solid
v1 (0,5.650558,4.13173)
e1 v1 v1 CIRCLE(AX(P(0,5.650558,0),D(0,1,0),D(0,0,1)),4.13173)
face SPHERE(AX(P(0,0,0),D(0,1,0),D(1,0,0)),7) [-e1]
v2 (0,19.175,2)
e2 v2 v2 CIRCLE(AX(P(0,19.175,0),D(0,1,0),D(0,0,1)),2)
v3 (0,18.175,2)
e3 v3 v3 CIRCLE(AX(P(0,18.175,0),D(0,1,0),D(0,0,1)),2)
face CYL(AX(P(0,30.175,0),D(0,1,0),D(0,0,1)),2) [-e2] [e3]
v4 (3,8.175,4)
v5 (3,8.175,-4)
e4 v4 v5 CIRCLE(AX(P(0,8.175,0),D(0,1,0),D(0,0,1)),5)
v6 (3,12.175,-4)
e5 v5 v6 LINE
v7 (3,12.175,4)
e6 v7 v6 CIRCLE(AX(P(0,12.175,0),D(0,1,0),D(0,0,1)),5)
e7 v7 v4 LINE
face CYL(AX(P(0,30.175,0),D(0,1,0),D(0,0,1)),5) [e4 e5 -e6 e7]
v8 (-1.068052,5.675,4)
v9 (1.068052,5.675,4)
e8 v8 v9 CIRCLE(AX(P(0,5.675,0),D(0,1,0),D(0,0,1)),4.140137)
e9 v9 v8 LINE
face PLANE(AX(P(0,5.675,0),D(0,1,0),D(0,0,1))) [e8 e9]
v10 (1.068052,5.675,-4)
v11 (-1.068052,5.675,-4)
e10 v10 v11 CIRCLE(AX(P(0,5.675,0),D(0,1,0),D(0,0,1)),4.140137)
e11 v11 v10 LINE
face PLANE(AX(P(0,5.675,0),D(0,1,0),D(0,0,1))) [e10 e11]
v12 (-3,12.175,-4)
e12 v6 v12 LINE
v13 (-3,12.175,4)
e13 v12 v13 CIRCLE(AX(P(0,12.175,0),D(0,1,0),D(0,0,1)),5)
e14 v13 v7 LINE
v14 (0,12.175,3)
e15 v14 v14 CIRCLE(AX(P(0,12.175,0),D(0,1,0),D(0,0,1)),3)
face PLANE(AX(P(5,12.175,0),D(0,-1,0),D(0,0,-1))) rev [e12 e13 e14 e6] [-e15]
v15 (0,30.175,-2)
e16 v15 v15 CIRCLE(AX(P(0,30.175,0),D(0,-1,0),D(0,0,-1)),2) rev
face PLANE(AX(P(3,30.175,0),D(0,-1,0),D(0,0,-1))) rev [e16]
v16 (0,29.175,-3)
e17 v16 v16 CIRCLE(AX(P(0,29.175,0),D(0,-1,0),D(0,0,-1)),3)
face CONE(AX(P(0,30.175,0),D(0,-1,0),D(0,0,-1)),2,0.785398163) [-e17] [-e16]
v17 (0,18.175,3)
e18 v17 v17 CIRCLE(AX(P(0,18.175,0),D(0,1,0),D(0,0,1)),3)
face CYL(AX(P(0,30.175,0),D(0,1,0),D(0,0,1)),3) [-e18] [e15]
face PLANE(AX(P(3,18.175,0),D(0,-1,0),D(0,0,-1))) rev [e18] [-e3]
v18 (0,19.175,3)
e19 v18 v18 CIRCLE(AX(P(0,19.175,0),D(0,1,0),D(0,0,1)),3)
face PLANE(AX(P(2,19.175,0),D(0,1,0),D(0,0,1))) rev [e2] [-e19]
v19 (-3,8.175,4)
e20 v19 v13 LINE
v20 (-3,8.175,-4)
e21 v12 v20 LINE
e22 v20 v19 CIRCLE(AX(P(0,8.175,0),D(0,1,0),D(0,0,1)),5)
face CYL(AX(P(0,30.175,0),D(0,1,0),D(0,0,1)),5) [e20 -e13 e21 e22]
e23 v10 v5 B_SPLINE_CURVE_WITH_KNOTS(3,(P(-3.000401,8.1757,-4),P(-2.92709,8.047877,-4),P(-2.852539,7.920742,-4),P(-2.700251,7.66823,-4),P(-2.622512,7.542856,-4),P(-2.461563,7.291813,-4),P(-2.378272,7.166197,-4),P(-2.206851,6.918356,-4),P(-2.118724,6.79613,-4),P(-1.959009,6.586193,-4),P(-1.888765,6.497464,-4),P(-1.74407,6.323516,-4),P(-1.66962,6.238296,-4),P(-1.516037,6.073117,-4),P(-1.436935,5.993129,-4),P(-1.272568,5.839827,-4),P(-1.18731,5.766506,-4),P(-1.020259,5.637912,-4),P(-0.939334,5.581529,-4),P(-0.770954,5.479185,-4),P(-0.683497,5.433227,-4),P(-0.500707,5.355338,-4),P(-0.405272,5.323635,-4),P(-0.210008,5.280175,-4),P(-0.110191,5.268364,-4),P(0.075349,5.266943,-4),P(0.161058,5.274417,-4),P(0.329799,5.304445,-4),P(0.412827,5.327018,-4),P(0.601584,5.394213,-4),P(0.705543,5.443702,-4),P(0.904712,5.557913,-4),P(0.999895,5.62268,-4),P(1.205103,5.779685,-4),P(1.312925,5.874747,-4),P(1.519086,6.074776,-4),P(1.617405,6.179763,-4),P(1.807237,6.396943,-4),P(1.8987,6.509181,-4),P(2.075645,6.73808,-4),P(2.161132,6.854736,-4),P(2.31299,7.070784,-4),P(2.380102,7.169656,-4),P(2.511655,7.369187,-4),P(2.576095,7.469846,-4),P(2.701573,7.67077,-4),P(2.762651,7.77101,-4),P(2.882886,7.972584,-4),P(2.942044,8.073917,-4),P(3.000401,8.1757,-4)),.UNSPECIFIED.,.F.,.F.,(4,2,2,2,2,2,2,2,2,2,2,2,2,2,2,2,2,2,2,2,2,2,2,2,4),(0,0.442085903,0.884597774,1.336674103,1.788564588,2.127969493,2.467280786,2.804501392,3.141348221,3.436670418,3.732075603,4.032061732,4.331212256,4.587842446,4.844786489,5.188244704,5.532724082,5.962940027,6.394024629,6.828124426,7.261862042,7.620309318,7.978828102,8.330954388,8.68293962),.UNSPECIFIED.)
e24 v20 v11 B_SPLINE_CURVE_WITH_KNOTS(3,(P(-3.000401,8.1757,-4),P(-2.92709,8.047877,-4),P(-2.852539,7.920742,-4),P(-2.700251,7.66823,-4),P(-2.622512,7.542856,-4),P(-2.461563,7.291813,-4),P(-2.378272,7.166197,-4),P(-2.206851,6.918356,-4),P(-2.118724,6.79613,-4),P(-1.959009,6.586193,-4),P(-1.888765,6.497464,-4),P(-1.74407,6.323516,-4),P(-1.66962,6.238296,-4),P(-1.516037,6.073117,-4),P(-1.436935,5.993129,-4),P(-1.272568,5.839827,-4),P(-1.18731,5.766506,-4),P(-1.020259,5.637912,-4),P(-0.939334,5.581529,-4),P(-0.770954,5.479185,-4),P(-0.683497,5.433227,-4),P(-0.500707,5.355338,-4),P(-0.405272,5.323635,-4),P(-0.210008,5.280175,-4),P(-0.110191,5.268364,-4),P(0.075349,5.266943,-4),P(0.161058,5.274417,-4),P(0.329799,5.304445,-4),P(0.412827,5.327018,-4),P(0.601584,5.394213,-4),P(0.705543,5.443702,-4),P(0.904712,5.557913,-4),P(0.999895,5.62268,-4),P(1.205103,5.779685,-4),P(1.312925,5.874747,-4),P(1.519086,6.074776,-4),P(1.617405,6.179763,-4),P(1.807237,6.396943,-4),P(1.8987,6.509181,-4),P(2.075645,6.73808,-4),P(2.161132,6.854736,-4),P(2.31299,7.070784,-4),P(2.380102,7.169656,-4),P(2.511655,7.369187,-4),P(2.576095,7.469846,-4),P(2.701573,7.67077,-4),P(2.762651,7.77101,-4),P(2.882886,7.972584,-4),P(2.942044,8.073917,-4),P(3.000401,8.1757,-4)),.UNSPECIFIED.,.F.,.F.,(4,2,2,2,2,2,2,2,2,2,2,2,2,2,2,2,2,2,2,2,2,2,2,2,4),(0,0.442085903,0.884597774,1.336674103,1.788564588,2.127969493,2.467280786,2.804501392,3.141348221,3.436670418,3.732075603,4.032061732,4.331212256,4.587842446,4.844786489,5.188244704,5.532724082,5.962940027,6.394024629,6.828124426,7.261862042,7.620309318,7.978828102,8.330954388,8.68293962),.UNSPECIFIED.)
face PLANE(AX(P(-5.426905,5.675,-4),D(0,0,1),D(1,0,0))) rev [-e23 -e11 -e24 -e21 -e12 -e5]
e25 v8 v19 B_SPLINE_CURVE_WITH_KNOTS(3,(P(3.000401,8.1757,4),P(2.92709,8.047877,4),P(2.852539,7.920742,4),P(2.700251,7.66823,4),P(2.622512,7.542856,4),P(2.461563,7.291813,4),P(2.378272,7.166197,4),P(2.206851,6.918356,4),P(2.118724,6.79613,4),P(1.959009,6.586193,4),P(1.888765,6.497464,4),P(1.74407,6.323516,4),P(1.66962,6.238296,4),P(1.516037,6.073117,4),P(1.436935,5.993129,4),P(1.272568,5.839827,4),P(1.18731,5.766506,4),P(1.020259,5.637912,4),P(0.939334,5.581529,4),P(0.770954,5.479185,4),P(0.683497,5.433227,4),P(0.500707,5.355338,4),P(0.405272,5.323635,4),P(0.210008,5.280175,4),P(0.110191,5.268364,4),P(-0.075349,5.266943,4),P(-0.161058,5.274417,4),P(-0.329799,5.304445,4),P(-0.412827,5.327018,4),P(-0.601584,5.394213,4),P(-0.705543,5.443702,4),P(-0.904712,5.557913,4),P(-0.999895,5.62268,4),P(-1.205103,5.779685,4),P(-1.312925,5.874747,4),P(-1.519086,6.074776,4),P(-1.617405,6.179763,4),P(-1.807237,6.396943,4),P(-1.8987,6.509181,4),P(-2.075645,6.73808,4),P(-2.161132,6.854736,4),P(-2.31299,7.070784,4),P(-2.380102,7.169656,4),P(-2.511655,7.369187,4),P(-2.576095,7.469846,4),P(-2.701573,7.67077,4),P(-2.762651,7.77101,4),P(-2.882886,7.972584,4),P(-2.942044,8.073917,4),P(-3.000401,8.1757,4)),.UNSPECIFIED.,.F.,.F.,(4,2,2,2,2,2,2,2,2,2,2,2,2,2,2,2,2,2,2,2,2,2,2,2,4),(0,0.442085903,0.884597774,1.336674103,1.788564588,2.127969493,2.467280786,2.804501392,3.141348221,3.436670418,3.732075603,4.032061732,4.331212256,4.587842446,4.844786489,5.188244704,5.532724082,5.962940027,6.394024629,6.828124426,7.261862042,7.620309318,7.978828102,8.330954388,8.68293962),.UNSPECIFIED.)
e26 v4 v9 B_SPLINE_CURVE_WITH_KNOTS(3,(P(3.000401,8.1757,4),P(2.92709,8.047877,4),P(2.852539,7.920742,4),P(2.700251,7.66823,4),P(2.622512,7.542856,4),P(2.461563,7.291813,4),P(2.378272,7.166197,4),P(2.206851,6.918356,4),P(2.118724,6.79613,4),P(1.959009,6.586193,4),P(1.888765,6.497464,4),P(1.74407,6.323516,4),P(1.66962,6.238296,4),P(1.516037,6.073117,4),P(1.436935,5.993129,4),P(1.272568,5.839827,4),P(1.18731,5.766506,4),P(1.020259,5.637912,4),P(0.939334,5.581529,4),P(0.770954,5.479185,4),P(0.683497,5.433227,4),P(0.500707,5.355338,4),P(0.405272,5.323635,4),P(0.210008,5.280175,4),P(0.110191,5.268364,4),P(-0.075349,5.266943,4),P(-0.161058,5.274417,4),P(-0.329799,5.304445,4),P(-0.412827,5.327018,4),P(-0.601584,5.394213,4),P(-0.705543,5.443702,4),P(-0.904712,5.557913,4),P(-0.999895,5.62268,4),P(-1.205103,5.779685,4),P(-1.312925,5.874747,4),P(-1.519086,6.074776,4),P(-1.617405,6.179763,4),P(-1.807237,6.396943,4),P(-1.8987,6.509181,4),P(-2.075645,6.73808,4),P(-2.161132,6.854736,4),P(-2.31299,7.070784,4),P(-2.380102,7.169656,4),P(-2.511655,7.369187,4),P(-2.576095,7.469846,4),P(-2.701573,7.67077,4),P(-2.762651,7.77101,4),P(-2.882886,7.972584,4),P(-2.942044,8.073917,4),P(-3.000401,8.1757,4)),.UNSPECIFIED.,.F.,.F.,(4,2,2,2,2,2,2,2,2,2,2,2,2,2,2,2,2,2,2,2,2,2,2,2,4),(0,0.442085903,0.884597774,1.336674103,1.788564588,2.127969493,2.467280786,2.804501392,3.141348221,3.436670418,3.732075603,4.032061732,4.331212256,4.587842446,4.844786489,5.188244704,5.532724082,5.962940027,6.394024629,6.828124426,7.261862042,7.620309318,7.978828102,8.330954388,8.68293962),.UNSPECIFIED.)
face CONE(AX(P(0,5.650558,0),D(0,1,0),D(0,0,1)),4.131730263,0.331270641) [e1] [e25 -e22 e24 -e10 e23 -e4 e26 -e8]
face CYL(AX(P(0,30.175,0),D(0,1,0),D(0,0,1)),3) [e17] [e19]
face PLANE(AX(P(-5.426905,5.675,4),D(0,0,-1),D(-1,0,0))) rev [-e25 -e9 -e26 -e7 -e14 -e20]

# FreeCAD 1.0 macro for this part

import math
import FreeCAD as App
import Part
import Sketcher
from FreeCAD import Vector
Q = App.Units.Quantity


def edges_at(feature, points):
    """Names of the edges that pass closest to the given points."""
    edges = feature.Shape.Edges
    near = lambda p: min(range(len(edges)), key=lambda i: edges[i].distToShape(Part.Vertex(*p))[0])
    return sorted({f"Edge{near(p) + 1}" for p in points})


def add_polygon(sketch, points):
    """Adds a closed chain of lines whose ends are joined by coincident constraints."""
    first, n = sketch.GeometryCount, len(points)
    for a, b in zip(points, points[1:] + points[:1]):
        sketch.addGeometry(Part.LineSegment(App.Vector(*a, 0), App.Vector(*b, 0)), False)
    for i in range(n):
        sketch.addConstraint(Sketcher.Constraint("Coincident", first + i, 2, first + (i + 1) % n, 1))

doc = App.newDocument("Part")
params = doc.addObject("Spreadsheet::Sheet", "Params")
for row, (alias, value) in enumerate([
    ("sketch1_radius", "7 mm"),
    ("sketch1_width", "2 mm"),
    ("sketch1_width2", "1 mm"),
    ("sketch1_width3", "3 mm"),
    ("sketch1_height", "4 mm"),
    ("revolution_angle", "360 deg"),
    ("chamfer_size", "1 mm"),
    ("pocket1_length", "6.5 mm"),
], start=1):
    params.set(f"A{row}", alias)
    params.set(f"B{row}", "=" + value)
    params.setAlias(f"B{row}", alias)

body = doc.addObject("PartDesign::Body", "Body")

# Sketch on XY plane
sketch1 = doc.addObject("Sketcher::SketchObject", "Sketch")
body.addObject(sketch1)
sketch1.AttachmentSupport = (doc.XY_Plane, [""])
sketch1.MapMode = "FlatFace"
sketch1.addGeometry(Part.LineSegment(Vector(4.13173, 5.650558, 0), Vector(5, 8.175, 0)), False)
sketch1.addGeometry(Part.LineSegment(Vector(5, 8.175, 0), Vector(5, 12.175, 0)), False)
sketch1.addGeometry(Part.LineSegment(Vector(5, 12.175, 0), Vector(3, 12.175, 0)), False)
sketch1.addGeometry(Part.LineSegment(Vector(3, 12.175, 0), Vector(3, 18.175, 0)), False)
sketch1.addGeometry(Part.LineSegment(Vector(3, 18.175, 0), Vector(2, 18.175, 0)), False)
sketch1.addGeometry(Part.LineSegment(Vector(2, 18.175, 0), Vector(2, 19.175, 0)), False)
sketch1.addGeometry(Part.LineSegment(Vector(2, 19.175, 0), Vector(3, 19.175, 0)), False)
sketch1.addGeometry(Part.LineSegment(Vector(3, 19.175, 0), Vector(3, 30.175, 0)), False)
sketch1.addGeometry(Part.LineSegment(Vector(3, 30.175, 0), Vector(0, 30.175, 0)), False)
sketch1.addGeometry(Part.LineSegment(Vector(0, 30.175, 0), Vector(0, -7, 0)), False)
sketch1.addGeometry(Part.ArcOfCircle(Part.Circle(Vector(0, 0, 0), Vector(0, 0, 1), 7), math.radians(-90), math.radians(53.825449)), False)
sketch1.addConstraint(Sketcher.Constraint("Coincident", 0, 2, 1, 1))
sketch1.addConstraint(Sketcher.Constraint("Coincident", 1, 2, 2, 1))
sketch1.addConstraint(Sketcher.Constraint("Coincident", 2, 2, 3, 1))
sketch1.addConstraint(Sketcher.Constraint("Coincident", 3, 2, 4, 1))
sketch1.addConstraint(Sketcher.Constraint("Coincident", 4, 2, 5, 1))
sketch1.addConstraint(Sketcher.Constraint("Coincident", 5, 2, 6, 1))
sketch1.addConstraint(Sketcher.Constraint("Coincident", 6, 2, 7, 1))
sketch1.addConstraint(Sketcher.Constraint("Coincident", 7, 2, 8, 1))
sketch1.addConstraint(Sketcher.Constraint("Coincident", 8, 2, 9, 1))
sketch1.addConstraint(Sketcher.Constraint("Coincident", 9, 2, 10, 1))
sketch1.addConstraint(Sketcher.Constraint("Coincident", 10, 2, 0, 1))
sketch1.addConstraint(Sketcher.Constraint("Vertical", 1))
sketch1.addConstraint(Sketcher.Constraint("Horizontal", 2))
sketch1.addConstraint(Sketcher.Constraint("Vertical", 3))
sketch1.addConstraint(Sketcher.Constraint("Horizontal", 4))
sketch1.addConstraint(Sketcher.Constraint("Vertical", 5))
sketch1.addConstraint(Sketcher.Constraint("Horizontal", 6))
sketch1.addConstraint(Sketcher.Constraint("Vertical", 7))
sketch1.addConstraint(Sketcher.Constraint("Horizontal", 8))
sketch1.addConstraint(Sketcher.Constraint("Vertical", 9))
sketch1.addConstraint(Sketcher.Constraint("Coincident", 10, 3, -1, 1))
sketch1.addConstraint(Sketcher.Constraint("PointOnObject", 8, 2, -2))
sketch1.addConstraint(Sketcher.Constraint("Vertical", 3, 2, 6, 2))
sketch1.addConstraint(Sketcher.Constraint("Equal", 6, 5))
sketch1.addConstraint(Sketcher.Constraint("Radius", 10, Q("7 mm")))
sketch1.addConstraint(Sketcher.Constraint("DistanceX", 2, 2, 2, 1, Q("2 mm")))
sketch1.addConstraint(Sketcher.Constraint("DistanceX", 4, 2, 4, 1, Q("1 mm")))
sketch1.addConstraint(Sketcher.Constraint("DistanceX", 8, 2, 8, 1, Q("3 mm")))
sketch1.addConstraint(Sketcher.Constraint("DistanceY", 1, 1, 1, 2, Q("4 mm")))
sketch1.addConstraint(Sketcher.Constraint("DistanceY", 3, 1, 3, 2, Q("6 mm")))
sketch1.addConstraint(Sketcher.Constraint("DistanceY", 7, 1, 7, 2, Q("11 mm")))
sketch1.addConstraint(Sketcher.Constraint("DistanceY", 9, 2, 9, 1, Q("37.175 mm")))
sketch1.addConstraint(Sketcher.Constraint("DistanceX", -1, 1, 10, 2, Q("4.13173 mm")))
sketch1.setExpression("Constraints[24]", "Params.sketch1_radius")
sketch1.setExpression("Constraints[25]", "Params.sketch1_width")
sketch1.setExpression("Constraints[26]", "Params.sketch1_width2")
sketch1.setExpression("Constraints[27]", "Params.sketch1_width3")
sketch1.setExpression("Constraints[28]", "Params.sketch1_height")
revolution = doc.addObject("PartDesign::Revolution", "Revolution")
body.addObject(revolution)
revolution.Profile = sketch1
revolution.ReferenceAxis = (sketch1, ["V_Axis"])
revolution.setExpression("Angle", "Params.revolution_angle")
doc.recompute()

chamfer = doc.addObject("PartDesign::Chamfer", "Chamfer")
body.addObject(chamfer)
chamfer.Base = (revolution, edges_at(revolution, [(0, 30.175, -3)]))
chamfer.setExpression("Size", "Params.chamfer_size")

# Sketch on XZ plane
sketch2 = doc.addObject("Sketcher::SketchObject", "Sketch001")
body.addObject(sketch2)
sketch2.AttachmentSupport = (doc.XZ_Plane, [""])
sketch2.MapMode = "FlatFace"
sketch2.AttachmentOffset = App.Placement(Vector(0, 0, -12.175), App.Rotation())
add_polygon(sketch2, [(-5.426905, 4), (-5.426905, 7.873115), (7.714069, 7.873115), (7.714069, 4)])  # lines 0-3
add_polygon(sketch2, [(-5.426905, -7.873115), (-5.426905, -4), (7.714069, -4), (7.714069, -7.873115)])  # lines 4-7
sketch2.addConstraint(Sketcher.Constraint("Vertical", 0))
sketch2.addConstraint(Sketcher.Constraint("Horizontal", 1))
sketch2.addConstraint(Sketcher.Constraint("Vertical", 2))
sketch2.addConstraint(Sketcher.Constraint("Horizontal", 3))
sketch2.addConstraint(Sketcher.Constraint("Vertical", 4))
sketch2.addConstraint(Sketcher.Constraint("Horizontal", 5))
sketch2.addConstraint(Sketcher.Constraint("Vertical", 6))
sketch2.addConstraint(Sketcher.Constraint("Horizontal", 7))
sketch2.addConstraint(Sketcher.Constraint("Symmetric", 3, 2, 4, 2, -1))
sketch2.addConstraint(Sketcher.Constraint("Symmetric", 1, 2, 6, 2, -1))
sketch2.addConstraint(Sketcher.Constraint("DistanceY", -1, 1, 2, 2, Q("4 mm")))
sketch2.addConstraint(Sketcher.Constraint("DistanceX", 1, 1, 1, 2, Q("13.140974 mm")))
sketch2.addConstraint(Sketcher.Constraint("DistanceY", 0, 1, 0, 2, Q("3.873115 mm")))
sketch2.addConstraint(Sketcher.Constraint("DistanceX", -1, 1, 1, 2, Q("7.714069 mm")))
pocket1 = doc.addObject("PartDesign::Pocket", "Pocket")
body.addObject(pocket1)
pocket1.Profile = sketch2
pocket1.setExpression("Length", "Params.pocket1_length")
pocket1.Reversed = True

doc.recompute()
